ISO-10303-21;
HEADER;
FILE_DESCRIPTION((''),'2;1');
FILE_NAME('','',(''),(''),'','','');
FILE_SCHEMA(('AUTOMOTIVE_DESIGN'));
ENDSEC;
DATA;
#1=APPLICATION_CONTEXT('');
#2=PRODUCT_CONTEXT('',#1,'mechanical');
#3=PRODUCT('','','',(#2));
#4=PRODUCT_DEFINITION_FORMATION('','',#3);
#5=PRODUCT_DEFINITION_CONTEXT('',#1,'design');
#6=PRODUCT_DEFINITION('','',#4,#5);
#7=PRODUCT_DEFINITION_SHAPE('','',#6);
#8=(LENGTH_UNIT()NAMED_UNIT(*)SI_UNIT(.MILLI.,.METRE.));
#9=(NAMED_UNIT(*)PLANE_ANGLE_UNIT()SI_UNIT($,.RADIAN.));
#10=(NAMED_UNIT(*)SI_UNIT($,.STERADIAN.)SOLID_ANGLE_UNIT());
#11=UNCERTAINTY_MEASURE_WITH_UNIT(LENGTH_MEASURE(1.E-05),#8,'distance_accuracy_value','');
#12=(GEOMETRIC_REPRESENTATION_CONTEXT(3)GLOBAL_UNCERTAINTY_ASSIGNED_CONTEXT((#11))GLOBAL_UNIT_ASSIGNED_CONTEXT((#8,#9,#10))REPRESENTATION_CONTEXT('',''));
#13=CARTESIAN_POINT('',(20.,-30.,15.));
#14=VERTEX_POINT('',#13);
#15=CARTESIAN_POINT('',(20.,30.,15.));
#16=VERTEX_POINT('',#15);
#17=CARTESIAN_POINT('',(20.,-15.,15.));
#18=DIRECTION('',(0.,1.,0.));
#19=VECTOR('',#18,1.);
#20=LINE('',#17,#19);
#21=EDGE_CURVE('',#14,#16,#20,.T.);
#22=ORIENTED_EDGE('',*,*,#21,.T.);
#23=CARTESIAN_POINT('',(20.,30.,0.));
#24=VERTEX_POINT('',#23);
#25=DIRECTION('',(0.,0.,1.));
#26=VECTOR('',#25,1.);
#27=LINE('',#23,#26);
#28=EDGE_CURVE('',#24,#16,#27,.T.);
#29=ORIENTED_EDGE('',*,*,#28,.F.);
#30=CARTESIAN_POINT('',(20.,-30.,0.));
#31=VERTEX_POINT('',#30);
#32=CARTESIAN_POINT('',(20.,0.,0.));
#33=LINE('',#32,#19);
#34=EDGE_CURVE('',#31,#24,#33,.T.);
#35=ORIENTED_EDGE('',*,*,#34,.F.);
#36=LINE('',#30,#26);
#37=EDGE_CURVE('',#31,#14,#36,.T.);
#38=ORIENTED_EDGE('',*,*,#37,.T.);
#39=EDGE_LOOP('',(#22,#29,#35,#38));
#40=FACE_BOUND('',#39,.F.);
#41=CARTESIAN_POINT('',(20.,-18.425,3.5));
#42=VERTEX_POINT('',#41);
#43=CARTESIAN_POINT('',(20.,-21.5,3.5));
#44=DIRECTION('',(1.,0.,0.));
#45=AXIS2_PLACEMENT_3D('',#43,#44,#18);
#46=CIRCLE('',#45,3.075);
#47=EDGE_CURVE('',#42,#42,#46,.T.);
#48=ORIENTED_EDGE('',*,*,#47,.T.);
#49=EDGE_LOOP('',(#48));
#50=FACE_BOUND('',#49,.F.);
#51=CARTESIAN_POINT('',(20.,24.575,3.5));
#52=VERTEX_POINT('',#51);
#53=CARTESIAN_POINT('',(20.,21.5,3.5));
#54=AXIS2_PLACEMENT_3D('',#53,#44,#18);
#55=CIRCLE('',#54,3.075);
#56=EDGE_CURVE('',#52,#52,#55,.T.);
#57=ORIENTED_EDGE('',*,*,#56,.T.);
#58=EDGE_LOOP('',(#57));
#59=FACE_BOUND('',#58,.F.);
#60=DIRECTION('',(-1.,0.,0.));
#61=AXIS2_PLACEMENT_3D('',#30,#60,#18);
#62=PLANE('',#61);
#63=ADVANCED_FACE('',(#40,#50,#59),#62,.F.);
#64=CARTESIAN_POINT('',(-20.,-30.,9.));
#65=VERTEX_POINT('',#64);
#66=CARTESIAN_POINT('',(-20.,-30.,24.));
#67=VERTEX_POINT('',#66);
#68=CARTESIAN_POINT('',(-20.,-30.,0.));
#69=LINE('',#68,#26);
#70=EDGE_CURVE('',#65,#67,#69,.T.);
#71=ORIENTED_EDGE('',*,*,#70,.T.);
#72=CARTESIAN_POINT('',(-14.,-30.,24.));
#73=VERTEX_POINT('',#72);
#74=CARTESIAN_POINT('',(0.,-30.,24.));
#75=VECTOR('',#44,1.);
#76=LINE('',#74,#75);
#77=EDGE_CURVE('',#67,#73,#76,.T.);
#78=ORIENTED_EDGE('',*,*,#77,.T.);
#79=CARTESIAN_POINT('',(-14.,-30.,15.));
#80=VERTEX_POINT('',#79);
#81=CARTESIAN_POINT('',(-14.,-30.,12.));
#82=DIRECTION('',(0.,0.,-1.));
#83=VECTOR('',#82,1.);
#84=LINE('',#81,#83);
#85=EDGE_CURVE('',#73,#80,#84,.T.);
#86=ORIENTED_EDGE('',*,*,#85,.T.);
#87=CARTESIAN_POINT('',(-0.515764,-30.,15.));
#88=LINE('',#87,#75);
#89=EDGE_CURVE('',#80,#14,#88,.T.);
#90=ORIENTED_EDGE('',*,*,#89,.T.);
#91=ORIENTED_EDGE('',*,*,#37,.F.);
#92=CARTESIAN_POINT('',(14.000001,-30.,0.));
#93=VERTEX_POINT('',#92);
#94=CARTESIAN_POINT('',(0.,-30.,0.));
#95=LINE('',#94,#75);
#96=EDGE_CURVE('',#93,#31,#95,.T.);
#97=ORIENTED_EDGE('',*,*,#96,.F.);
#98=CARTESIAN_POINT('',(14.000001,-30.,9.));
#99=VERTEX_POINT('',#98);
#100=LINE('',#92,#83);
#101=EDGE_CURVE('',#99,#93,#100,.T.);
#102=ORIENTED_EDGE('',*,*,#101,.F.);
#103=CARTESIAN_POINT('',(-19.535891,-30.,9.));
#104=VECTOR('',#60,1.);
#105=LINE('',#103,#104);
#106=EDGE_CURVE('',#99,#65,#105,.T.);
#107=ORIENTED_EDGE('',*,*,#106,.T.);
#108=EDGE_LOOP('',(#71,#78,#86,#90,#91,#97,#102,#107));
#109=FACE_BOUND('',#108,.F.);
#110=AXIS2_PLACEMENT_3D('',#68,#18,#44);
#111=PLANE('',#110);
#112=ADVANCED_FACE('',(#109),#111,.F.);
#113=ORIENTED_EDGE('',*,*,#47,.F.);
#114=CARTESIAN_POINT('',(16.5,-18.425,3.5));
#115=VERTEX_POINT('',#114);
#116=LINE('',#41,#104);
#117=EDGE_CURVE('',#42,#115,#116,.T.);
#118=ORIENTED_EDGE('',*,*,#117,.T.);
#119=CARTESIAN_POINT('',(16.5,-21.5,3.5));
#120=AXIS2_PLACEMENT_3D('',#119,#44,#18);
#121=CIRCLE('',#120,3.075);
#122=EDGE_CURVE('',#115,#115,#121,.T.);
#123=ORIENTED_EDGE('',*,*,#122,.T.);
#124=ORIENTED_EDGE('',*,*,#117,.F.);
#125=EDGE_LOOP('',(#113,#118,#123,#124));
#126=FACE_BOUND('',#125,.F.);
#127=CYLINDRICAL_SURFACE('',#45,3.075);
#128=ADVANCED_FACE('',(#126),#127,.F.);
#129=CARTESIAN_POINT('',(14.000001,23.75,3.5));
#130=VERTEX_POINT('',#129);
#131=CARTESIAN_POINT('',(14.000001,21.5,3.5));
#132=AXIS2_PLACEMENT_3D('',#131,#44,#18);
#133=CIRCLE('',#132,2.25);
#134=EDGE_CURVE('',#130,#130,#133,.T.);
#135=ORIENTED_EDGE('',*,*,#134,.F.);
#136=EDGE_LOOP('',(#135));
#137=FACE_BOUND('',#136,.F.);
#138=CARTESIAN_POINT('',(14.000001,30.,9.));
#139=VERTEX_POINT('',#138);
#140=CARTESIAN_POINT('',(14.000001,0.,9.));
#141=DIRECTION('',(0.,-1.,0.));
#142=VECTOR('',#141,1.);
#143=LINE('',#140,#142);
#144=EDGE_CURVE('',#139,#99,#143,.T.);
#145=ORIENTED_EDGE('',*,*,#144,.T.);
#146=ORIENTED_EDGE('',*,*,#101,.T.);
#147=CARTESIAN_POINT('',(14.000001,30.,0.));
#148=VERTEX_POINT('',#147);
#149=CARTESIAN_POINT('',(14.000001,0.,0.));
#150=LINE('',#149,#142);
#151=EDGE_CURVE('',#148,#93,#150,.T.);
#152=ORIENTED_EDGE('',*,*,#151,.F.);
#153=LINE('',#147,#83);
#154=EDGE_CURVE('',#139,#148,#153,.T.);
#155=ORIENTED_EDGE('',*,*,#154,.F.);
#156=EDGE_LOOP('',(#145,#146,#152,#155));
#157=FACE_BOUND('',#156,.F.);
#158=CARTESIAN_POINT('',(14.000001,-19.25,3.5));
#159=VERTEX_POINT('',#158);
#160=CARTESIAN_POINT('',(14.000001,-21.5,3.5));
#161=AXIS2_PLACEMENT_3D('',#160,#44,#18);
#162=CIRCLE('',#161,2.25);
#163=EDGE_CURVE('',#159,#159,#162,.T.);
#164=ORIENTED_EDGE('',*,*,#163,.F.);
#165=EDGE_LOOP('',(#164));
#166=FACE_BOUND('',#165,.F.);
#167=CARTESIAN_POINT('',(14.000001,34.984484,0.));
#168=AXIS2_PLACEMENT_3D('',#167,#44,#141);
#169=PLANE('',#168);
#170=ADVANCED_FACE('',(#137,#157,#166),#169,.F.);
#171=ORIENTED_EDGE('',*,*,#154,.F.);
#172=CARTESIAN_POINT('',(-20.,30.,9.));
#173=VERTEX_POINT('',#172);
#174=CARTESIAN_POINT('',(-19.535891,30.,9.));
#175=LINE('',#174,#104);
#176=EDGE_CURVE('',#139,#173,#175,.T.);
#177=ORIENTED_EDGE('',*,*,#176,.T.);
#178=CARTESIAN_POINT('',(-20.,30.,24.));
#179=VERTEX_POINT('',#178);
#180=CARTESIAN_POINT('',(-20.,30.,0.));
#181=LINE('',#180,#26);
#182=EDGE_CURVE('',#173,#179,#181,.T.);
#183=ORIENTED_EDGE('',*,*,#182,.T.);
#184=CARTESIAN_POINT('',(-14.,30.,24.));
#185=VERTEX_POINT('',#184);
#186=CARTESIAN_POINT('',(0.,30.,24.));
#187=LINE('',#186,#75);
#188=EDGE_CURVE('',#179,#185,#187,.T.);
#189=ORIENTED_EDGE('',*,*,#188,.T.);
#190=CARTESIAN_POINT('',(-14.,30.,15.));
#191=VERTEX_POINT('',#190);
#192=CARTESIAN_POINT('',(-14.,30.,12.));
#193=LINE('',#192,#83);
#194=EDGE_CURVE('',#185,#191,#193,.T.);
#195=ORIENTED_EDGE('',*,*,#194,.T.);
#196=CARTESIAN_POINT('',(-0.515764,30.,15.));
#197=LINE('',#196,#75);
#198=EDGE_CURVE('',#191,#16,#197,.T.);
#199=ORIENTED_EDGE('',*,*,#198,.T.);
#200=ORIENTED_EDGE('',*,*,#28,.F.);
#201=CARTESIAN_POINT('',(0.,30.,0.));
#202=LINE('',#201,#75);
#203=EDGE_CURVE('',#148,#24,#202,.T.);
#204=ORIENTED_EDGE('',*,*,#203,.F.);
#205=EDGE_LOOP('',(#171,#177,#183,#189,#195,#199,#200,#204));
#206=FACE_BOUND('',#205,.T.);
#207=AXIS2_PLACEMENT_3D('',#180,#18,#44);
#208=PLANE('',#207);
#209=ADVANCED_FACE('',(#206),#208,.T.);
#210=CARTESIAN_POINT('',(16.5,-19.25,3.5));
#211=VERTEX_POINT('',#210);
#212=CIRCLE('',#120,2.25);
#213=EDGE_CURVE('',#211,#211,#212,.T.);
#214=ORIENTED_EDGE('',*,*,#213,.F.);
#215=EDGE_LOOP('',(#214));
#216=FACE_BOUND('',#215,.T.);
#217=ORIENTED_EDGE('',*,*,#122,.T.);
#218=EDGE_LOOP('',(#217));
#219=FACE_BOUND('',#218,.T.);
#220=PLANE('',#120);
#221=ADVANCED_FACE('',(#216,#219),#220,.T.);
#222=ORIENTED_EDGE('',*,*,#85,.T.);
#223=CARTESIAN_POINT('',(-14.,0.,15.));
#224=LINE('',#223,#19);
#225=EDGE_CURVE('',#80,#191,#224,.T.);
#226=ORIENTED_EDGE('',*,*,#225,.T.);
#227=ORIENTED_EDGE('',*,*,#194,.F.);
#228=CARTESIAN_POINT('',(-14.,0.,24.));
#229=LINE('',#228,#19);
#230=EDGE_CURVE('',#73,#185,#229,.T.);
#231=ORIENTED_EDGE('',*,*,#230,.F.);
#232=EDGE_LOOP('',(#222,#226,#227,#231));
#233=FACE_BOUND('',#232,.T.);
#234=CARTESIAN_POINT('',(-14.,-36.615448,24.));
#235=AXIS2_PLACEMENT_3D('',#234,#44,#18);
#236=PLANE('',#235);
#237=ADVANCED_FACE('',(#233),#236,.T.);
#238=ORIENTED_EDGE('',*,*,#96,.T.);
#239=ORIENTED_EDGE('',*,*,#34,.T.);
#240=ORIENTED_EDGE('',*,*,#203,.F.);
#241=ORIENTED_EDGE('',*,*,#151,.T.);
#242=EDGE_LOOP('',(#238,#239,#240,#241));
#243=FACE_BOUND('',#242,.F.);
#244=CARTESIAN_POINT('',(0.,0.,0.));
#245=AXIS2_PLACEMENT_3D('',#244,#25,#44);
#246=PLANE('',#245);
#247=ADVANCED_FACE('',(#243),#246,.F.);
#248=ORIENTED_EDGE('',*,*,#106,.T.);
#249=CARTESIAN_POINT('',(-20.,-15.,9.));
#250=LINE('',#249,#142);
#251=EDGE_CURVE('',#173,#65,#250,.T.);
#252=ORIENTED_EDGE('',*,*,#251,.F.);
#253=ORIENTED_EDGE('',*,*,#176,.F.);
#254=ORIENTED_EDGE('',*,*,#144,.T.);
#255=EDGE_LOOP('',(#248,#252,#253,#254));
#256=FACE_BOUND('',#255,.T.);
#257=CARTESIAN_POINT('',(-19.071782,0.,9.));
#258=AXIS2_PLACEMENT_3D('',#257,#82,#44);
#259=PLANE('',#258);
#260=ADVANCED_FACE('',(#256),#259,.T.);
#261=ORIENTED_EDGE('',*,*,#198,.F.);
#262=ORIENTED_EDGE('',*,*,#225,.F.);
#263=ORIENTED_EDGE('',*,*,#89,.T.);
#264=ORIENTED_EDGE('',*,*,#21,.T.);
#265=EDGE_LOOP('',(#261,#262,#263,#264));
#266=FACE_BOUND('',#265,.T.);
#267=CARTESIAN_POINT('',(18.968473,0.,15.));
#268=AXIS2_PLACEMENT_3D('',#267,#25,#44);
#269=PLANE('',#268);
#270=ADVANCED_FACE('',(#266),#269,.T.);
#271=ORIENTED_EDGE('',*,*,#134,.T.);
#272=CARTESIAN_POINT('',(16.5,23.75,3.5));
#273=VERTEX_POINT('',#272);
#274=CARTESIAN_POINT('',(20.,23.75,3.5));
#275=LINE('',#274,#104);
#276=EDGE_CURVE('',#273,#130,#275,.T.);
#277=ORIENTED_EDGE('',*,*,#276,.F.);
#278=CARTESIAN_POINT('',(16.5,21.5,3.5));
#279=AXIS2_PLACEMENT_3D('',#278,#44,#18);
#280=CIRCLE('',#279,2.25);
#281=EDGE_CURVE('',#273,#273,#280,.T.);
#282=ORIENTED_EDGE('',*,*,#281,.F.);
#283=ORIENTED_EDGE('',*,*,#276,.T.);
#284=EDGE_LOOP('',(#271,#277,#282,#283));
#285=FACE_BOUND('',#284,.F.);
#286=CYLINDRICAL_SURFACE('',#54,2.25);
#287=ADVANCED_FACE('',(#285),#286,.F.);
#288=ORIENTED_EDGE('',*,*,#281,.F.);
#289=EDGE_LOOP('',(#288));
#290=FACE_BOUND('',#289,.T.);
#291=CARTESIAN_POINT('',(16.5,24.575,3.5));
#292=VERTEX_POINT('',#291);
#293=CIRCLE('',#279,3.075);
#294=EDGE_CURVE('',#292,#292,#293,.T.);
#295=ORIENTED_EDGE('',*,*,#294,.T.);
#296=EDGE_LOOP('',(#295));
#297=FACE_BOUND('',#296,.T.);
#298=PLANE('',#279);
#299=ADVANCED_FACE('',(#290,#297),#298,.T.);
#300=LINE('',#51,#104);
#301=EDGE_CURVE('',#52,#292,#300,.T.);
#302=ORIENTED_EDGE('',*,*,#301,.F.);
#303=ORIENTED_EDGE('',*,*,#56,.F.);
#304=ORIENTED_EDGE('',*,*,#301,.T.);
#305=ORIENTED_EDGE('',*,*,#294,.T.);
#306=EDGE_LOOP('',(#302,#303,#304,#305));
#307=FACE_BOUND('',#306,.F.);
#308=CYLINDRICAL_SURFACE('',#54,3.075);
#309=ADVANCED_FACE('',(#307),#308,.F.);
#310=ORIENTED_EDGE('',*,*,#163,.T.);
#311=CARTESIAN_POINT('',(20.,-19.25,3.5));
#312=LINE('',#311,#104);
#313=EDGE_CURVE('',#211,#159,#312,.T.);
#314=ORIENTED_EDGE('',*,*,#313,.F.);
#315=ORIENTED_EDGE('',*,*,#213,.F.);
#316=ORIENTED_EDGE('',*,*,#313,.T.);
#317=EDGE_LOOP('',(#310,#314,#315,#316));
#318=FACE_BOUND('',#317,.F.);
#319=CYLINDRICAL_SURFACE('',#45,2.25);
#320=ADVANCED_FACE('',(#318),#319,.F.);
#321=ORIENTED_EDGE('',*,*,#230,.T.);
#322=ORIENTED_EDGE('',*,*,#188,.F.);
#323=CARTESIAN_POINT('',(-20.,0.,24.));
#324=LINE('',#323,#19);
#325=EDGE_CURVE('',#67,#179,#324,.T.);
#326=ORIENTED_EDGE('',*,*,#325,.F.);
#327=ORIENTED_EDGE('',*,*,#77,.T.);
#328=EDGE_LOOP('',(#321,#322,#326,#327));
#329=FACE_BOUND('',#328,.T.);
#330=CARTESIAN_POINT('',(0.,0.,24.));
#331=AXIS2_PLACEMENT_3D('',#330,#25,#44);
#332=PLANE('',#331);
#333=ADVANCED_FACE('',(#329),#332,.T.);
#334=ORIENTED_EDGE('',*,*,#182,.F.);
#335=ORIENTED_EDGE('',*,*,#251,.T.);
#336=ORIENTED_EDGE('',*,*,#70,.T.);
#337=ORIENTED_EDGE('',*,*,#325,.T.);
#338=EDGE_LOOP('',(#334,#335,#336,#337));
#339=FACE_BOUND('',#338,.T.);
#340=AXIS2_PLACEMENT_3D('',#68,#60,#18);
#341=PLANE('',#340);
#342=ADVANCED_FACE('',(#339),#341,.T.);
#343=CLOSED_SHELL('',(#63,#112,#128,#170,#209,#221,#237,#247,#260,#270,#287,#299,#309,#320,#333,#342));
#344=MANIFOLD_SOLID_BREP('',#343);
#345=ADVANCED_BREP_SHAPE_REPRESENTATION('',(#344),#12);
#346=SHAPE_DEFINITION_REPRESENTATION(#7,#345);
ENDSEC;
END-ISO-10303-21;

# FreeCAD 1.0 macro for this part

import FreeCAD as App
import Part
import Sketcher
from FreeCAD import Vector
Q = App.Units.Quantity


def add_polygon(sketch, points):
    """Adds a closed chain of lines whose ends are joined by coincident constraints."""
    first, n = sketch.GeometryCount, len(points)
    for a, b in zip(points, points[1:] + points[:1]):
        sketch.addGeometry(Part.LineSegment(App.Vector(*a, 0), App.Vector(*b, 0)), False)
    for i in range(n):
        sketch.addConstraint(Sketcher.Constraint("Coincident", first + i, 2, first + (i + 1) % n, 1))

doc = App.newDocument("Part")
body = doc.addObject("PartDesign::Body", "Body")

# Sketch on XY plane
sketch1 = body.newObject("Sketcher::SketchObject", "Sketch")
sketch1.AttachmentSupport = (doc.getObject("XY_Plane"), [""])
sketch1.MapMode = "FlatFace"
add_polygon(sketch1, [(-20, 30), (-20, -30), (20, -30), (20, 30)])  # lines 0-3
sketch1.addConstraint([
    Sketcher.Constraint("Vertical", 0),
    Sketcher.Constraint("Horizontal", 1),
    Sketcher.Constraint("Vertical", 2),
    Sketcher.Constraint("Horizontal", 3),
    Sketcher.Constraint("Symmetric", 0, 2, 2, 2, -1, 1),
    Sketcher.Constraint("DistanceX", 1, 1, 1, 2, Q("40 mm")),
    Sketcher.Constraint("DistanceY", 0, 2, 0, 1, Q("60 mm")),
])
pad1 = body.newObject("PartDesign::Pad", "Pad")
pad1.Profile = sketch1
pad1.Length = 24

# Sketch on XY plane
sketch2 = body.newObject("Sketcher::SketchObject", "Sketch001")
sketch2.AttachmentSupport = (doc.getObject("XY_Plane"), [""])
sketch2.MapMode = "FlatFace"
sketch2.AttachmentOffset = App.Placement(Vector(0, 0, 24), App.Rotation())
add_polygon(sketch2, [(-14, 37), (-14, -37), (52, -37), (52, 37)])  # lines 0-3
sketch2.addConstraint([
    Sketcher.Constraint("Vertical", 0),
    Sketcher.Constraint("Horizontal", 1),
    Sketcher.Constraint("Vertical", 2),
    Sketcher.Constraint("Horizontal", 3),
    Sketcher.Constraint("DistanceX", 0, 2, -1, 1, Q("14 mm")),
    Sketcher.Constraint("DistanceX", 1, 1, 1, 2, Q("65.936946 mm")),
    Sketcher.Constraint("DistanceY", 0, 2, 0, 1, Q("73.230896 mm")),
    Sketcher.Constraint("DistanceY", 0, 2, -1, 1, Q("36.615448 mm")),
])
pocket1 = body.newObject("PartDesign::Pocket", "Pocket")
pocket1.Profile = sketch2
pocket1.Length = 9

# Sketch on XY plane
sketch3 = body.newObject("Sketcher::SketchObject", "Sketch002")
sketch3.AttachmentSupport = (doc.getObject("XY_Plane"), [""])
sketch3.MapMode = "FlatFace"
add_polygon(sketch3, [(-52, -35), (-52, 35), (14, 35), (14, -35)])  # lines 0-3
sketch3.addConstraint([
    Sketcher.Constraint("Vertical", 0),
    Sketcher.Constraint("Horizontal", 1),
    Sketcher.Constraint("Vertical", 2),
    Sketcher.Constraint("Horizontal", 3),
    Sketcher.Constraint("DistanceX", -1, 1, 1, 2, Q("14.000001 mm")),
    Sketcher.Constraint("DistanceY", 0, 1, 0, 2, Q("69.968968 mm")),
    Sketcher.Constraint("DistanceX", 1, 1, 1, 2, Q("66.143565 mm")),
    Sketcher.Constraint("DistanceY", -1, 1, 0, 2, Q("34.984484 mm")),
])
pocket2 = body.newObject("PartDesign::Pocket", "Pocket001")
pocket2.Profile = sketch3
pocket2.Length = 9
pocket2.Reversed = True

# Sketch on YZ plane
sketch4 = body.newObject("Sketcher::SketchObject", "Sketch003")
sketch4.AttachmentSupport = (doc.getObject("YZ_Plane"), [""])
sketch4.MapMode = "FlatFace"
sketch4.AttachmentOffset = App.Placement(Vector(0, 0, 20), App.Rotation())
sketch4.addGeometry([
    Part.Circle(Vector(21.5, 3.5, 0), Vector(0, 0, 1), 2.2),
    Part.Circle(Vector(-21.5, 3.5, 0), Vector(0, 0, 1), 2.2),
], False)
sketch4.addConstraint([
    Sketcher.Constraint("Equal", 0, 1),
    Sketcher.Constraint("Symmetric", 0, 3, 1, 3, -2),
    Sketcher.Constraint("Diameter", 0, Q("4.5 mm")),
    Sketcher.Constraint("DistanceX", 1, 3, 0, 3, Q("43 mm")),
    Sketcher.Constraint("DistanceY", -1, 1, 0, 3, Q("3.5 mm")),
])
pocket3 = body.newObject("PartDesign::Pocket", "Pocket002")
pocket3.Profile = sketch4
pocket3.Length = 8

# Sketch on YZ plane
sketch5 = body.newObject("Sketcher::SketchObject", "Sketch004")
sketch5.AttachmentSupport = (doc.getObject("YZ_Plane"), [""])
sketch5.MapMode = "FlatFace"
sketch5.AttachmentOffset = App.Placement(Vector(0, 0, 20), App.Rotation())
sketch5.addGeometry([
    Part.Circle(Vector(-21.5, 3.5, 0), Vector(0, 0, 1), 3.1),
    Part.Circle(Vector(21.5, 3.5, 0), Vector(0, 0, 1), 3.1),
], False)
sketch5.addConstraint([
    Sketcher.Constraint("Equal", 0, 1),
    Sketcher.Constraint("Symmetric", 0, 3, 1, 3, -2),
    Sketcher.Constraint("Diameter", 0, Q("6.15 mm")),
    Sketcher.Constraint("DistanceX", 0, 3, 1, 3, Q("43 mm")),
    Sketcher.Constraint("DistanceY", -1, 1, 0, 3, Q("3.5 mm")),
])
pocket4 = body.newObject("PartDesign::Pocket", "Pocket003")
pocket4.Profile = sketch5
pocket4.Length = 3.5

doc.recompute()
